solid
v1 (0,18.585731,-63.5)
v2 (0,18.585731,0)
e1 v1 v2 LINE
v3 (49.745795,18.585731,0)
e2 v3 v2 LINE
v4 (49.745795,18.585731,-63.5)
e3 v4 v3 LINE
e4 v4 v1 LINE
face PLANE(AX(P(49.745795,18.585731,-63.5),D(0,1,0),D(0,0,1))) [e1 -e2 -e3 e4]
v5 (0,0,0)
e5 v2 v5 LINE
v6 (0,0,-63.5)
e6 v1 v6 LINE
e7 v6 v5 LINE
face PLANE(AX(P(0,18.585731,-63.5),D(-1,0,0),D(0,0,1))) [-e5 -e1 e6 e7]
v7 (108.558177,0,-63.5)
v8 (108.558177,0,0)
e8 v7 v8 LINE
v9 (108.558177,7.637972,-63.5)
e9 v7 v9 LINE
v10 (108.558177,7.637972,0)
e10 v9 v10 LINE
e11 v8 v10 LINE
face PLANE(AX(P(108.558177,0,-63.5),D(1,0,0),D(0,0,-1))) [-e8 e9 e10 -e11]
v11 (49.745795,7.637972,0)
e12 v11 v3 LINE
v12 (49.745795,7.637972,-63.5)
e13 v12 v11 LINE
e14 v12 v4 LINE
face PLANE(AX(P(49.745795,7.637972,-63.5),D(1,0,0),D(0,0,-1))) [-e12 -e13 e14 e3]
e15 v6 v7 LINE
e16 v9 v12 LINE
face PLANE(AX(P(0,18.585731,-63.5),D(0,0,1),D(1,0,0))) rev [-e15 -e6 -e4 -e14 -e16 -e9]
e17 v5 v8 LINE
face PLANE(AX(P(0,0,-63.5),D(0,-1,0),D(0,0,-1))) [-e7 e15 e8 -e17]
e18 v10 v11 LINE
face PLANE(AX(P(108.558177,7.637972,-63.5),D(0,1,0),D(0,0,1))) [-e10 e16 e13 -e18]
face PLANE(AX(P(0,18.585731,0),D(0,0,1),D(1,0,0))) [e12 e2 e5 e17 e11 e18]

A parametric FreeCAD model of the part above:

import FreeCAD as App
import Part
import Sketcher

V = App.Vector
Q = App.Units.Quantity

doc = App.newDocument("Part")
body = doc.addObject("PartDesign::Body", "Body")

# Sketch on XY plane
sketch1 = body.newObject("Sketcher::SketchObject", "Sketch")
sketch1.AttachmentSupport = (doc.getObject("XY_Plane"), [""])
sketch1.MapMode = "FlatFace"
sketch1.addGeometry(Part.LineSegment(V(0, 18.585731, 0), V(0, 0, 0)), False)
sketch1.addGeometry(Part.LineSegment(V(0, 0, 0), V(108.558177, 0, 0)), False)
sketch1.addGeometry(Part.LineSegment(V(108.558177, 0, 0), V(108.558177, 7.637972, 0)), False)
sketch1.addGeometry(Part.LineSegment(V(108.558177, 7.637972, 0), V(49.745795, 7.637972, 0)), False)
sketch1.addGeometry(Part.LineSegment(V(49.745795, 7.637972, 0), V(49.745795, 18.585731, 0)), False)
sketch1.addGeometry(Part.LineSegment(V(49.745795, 18.585731, 0), V(0, 18.585731, 0)), False)
sketch1.addConstraint(Sketcher.Constraint("Coincident", 0, 2, 1, 1))
sketch1.addConstraint(Sketcher.Constraint("Coincident", 1, 2, 2, 1))
sketch1.addConstraint(Sketcher.Constraint("Coincident", 2, 2, 3, 1))
sketch1.addConstraint(Sketcher.Constraint("Coincident", 3, 2, 4, 1))
sketch1.addConstraint(Sketcher.Constraint("Coincident", 4, 2, 5, 1))
sketch1.addConstraint(Sketcher.Constraint("Coincident", 5, 2, 0, 1))
sketch1.addConstraint(Sketcher.Constraint("Vertical", 0))
sketch1.addConstraint(Sketcher.Constraint("Horizontal", 1))
sketch1.addConstraint(Sketcher.Constraint("Vertical", 2))
sketch1.addConstraint(Sketcher.Constraint("Horizontal", 3))
sketch1.addConstraint(Sketcher.Constraint("Vertical", 4))
sketch1.addConstraint(Sketcher.Constraint("Horizontal", 5))
sketch1.addConstraint(Sketcher.Constraint("Coincident", 0, 2, -1, 1))
sketch1.addConstraint(Sketcher.Constraint("DistanceY", 0, 2, 0, 1, 18.585731))
sketch1.addConstraint(Sketcher.Constraint("DistanceY", 2, 1, 2, 2, 7.637972))
sketch1.addConstraint(Sketcher.Constraint("DistanceX", 1, 1, 1, 2, 108.558177))
sketch1.addConstraint(Sketcher.Constraint("DistanceX", 3, 2, 3, 1, 58.812382))
pad1 = body.newObject("PartDesign::Pad", "Pad")
pad1.Profile = sketch1
pad1.Length = Q("2.5 in")
pad1.Reversed = True

doc.recompute()
